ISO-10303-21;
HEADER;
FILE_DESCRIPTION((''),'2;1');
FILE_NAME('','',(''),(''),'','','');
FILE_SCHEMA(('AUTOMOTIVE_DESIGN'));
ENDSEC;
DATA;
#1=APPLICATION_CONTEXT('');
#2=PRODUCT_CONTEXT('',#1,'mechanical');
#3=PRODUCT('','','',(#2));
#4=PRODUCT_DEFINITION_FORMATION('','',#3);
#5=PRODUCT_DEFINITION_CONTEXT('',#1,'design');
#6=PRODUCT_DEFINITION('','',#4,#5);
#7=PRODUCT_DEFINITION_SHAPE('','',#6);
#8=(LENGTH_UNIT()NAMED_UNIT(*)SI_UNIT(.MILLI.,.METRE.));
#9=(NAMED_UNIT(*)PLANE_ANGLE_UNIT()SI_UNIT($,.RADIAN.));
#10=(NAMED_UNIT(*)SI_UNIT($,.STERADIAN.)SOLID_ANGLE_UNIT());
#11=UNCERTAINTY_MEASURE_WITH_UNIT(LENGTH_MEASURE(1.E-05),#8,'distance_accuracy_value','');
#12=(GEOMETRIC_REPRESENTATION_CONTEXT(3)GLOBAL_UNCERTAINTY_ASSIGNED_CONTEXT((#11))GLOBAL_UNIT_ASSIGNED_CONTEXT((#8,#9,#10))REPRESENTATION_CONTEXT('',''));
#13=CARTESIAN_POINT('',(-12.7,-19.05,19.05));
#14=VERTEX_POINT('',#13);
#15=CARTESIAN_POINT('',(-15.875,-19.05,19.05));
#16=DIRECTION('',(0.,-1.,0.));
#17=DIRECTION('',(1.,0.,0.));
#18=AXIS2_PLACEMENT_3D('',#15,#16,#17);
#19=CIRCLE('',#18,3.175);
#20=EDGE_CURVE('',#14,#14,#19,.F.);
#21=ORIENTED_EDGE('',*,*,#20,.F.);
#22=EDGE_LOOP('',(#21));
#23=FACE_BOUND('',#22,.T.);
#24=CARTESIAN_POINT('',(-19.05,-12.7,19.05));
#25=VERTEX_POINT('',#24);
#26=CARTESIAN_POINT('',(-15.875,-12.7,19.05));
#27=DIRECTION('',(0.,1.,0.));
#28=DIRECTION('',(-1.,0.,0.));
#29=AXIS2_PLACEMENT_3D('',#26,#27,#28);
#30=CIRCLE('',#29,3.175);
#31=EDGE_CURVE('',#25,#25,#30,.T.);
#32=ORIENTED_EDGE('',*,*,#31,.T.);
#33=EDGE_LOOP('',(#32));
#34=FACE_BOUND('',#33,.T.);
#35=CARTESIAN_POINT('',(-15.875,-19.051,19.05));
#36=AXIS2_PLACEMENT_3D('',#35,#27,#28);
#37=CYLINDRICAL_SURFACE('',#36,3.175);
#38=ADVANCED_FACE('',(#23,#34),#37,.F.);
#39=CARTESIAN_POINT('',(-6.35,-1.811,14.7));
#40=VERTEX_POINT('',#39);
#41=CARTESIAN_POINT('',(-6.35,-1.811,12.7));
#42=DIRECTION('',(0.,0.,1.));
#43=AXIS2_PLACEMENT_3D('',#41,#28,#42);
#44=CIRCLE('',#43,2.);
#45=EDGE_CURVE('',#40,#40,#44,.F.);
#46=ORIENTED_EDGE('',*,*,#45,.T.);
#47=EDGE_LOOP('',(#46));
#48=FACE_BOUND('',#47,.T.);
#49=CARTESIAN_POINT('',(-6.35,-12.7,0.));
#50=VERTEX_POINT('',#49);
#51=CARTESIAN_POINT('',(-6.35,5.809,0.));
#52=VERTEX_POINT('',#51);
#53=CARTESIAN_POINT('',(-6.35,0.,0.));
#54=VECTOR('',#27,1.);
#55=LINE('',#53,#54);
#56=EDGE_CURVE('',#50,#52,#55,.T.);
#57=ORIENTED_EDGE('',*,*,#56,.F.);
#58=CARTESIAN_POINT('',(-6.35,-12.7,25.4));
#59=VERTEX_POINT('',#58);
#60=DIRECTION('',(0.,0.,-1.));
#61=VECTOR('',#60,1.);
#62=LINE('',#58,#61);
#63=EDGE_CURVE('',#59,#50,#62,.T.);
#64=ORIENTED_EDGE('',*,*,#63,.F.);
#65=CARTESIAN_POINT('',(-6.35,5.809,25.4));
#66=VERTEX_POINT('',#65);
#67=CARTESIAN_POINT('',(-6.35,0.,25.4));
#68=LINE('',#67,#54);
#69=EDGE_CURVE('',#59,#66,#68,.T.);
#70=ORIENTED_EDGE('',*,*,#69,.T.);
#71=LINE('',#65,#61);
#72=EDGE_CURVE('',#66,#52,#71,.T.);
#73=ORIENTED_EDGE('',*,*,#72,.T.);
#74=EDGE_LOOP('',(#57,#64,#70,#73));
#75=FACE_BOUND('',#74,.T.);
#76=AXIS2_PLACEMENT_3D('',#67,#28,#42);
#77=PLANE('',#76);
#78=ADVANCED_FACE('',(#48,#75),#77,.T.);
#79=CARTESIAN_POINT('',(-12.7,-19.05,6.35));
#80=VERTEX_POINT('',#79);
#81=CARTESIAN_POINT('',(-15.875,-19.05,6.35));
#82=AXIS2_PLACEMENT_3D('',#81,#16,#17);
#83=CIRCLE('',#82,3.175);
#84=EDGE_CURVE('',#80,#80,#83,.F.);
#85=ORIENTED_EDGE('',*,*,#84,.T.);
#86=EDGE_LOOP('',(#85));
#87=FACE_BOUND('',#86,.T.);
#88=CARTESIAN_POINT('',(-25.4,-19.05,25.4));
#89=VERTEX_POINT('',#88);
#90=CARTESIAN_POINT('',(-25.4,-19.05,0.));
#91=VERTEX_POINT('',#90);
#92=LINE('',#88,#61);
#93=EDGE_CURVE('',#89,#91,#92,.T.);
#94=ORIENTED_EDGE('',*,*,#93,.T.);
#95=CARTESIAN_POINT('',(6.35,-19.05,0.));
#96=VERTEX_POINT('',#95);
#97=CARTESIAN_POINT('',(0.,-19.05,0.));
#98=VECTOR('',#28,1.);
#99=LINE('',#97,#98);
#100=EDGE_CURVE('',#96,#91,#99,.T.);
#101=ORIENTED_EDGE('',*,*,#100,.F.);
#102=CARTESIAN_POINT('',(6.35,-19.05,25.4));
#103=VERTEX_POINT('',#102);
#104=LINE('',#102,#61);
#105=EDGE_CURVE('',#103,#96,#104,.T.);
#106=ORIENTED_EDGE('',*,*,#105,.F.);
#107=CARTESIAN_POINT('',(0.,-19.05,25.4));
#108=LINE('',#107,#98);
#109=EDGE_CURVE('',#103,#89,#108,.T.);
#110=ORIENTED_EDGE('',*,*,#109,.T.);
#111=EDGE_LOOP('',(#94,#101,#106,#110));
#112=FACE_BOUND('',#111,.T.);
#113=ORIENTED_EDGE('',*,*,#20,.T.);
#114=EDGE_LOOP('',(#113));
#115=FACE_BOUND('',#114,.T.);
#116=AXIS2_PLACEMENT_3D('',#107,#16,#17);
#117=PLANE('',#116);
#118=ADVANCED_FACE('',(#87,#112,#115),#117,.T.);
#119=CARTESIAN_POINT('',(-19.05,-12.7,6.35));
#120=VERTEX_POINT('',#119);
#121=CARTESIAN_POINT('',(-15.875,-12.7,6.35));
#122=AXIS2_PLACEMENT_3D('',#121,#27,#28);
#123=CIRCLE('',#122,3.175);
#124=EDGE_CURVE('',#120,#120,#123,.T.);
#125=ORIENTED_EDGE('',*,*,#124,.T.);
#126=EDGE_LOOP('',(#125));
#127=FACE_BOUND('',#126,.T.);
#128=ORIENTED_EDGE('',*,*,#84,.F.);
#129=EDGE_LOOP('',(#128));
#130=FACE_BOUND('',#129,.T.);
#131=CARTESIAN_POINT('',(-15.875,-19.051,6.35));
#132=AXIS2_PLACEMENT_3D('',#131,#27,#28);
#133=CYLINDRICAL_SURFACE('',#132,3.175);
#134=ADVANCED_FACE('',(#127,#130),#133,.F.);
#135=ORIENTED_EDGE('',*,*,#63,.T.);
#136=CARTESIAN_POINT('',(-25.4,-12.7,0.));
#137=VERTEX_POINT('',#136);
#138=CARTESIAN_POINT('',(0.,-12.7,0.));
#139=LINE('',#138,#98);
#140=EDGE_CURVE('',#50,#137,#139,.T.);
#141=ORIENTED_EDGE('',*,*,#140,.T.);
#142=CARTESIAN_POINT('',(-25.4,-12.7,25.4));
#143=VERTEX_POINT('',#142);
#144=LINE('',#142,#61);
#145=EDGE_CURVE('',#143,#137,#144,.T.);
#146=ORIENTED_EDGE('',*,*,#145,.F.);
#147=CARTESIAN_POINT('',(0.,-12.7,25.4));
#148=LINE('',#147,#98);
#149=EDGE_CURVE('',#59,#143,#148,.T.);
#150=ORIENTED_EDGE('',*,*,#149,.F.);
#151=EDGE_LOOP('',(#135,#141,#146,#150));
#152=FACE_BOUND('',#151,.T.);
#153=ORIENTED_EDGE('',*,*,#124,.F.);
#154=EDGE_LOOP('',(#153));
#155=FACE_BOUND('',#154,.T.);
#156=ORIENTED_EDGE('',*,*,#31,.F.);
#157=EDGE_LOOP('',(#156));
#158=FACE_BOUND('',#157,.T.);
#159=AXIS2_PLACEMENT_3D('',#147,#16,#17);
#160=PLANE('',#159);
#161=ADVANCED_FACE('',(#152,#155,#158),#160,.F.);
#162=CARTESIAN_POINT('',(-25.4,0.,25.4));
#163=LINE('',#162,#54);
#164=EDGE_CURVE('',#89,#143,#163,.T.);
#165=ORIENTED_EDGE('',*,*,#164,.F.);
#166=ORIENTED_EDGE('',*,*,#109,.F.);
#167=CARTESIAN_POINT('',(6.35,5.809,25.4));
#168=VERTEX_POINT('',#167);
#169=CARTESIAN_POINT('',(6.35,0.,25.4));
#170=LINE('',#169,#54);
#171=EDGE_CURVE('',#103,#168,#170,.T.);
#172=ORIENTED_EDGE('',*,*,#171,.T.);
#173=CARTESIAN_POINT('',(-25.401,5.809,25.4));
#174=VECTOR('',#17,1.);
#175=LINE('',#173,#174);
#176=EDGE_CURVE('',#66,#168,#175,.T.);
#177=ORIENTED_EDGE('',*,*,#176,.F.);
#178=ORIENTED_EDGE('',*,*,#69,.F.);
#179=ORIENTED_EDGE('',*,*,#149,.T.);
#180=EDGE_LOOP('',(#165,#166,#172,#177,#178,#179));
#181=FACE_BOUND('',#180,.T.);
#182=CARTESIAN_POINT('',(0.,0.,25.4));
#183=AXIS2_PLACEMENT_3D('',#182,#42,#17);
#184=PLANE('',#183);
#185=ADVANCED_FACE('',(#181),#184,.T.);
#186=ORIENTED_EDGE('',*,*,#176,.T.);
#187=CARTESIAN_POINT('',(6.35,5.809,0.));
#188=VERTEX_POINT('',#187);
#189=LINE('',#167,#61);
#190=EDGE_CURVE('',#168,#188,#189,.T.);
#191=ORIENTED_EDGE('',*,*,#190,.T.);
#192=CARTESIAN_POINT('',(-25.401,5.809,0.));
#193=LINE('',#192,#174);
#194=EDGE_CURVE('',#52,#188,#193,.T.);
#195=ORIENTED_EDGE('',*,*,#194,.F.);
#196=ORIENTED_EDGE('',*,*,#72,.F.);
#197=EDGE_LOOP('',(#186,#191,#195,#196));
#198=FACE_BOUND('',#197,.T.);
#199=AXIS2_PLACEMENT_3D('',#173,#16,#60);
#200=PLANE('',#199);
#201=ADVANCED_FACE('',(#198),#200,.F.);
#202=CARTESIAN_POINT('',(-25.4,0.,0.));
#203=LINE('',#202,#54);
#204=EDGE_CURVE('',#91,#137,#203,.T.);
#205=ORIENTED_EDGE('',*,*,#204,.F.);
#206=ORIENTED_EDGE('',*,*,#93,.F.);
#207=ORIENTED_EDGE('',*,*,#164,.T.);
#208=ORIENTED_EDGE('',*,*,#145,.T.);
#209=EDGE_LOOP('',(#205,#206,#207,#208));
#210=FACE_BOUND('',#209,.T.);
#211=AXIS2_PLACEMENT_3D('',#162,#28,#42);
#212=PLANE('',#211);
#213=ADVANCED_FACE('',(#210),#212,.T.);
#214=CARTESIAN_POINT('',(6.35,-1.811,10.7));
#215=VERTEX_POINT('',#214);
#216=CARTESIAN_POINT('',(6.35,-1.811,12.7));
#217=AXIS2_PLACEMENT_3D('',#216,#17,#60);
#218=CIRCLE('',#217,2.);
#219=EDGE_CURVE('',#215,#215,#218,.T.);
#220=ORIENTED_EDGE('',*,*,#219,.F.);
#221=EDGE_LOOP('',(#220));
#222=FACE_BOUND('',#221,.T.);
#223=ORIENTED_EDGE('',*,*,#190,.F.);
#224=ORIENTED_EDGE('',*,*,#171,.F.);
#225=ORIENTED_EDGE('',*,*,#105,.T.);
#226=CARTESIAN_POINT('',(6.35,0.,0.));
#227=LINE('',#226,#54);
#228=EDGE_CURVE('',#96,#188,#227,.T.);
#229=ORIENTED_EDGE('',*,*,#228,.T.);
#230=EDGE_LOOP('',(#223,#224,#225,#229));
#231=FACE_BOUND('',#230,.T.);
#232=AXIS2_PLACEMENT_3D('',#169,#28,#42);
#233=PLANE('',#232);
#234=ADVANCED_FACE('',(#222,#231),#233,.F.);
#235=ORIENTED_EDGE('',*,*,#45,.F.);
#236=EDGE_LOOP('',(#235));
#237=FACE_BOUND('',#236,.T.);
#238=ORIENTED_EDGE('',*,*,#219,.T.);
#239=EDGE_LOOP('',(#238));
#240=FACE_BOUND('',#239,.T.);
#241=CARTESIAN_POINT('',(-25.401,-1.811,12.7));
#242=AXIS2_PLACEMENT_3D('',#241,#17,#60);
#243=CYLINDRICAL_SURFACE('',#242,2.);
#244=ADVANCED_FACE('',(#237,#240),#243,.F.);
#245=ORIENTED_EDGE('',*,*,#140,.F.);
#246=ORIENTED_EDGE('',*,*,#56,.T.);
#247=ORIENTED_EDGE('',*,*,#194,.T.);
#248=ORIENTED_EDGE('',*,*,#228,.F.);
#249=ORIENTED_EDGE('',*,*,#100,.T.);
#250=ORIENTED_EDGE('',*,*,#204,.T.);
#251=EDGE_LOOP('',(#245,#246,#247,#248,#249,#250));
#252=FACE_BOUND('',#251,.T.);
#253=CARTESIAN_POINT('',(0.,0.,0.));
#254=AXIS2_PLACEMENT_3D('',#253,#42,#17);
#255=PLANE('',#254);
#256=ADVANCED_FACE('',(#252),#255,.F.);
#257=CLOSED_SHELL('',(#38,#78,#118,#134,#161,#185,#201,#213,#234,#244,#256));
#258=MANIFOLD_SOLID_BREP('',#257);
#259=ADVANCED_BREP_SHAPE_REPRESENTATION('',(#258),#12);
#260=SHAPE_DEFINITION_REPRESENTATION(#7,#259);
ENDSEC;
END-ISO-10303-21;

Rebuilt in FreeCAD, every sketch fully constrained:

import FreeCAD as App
import Part
import Sketcher
from FreeCAD import Vector
Q = App.Units.Quantity


def add_polygon(sketch, points):
    """Adds a closed chain of lines whose ends are joined by coincident constraints."""
    first, n = sketch.GeometryCount, len(points)
    for a, b in zip(points, points[1:] + points[:1]):
        sketch.addGeometry(Part.LineSegment(App.Vector(*a, 0), App.Vector(*b, 0)), False)
    for i in range(n):
        sketch.addConstraint(Sketcher.Constraint("Coincident", first + i, 2, first + (i + 1) % n, 1))

doc = App.newDocument("Part")
body = doc.addObject("PartDesign::Body", "Body")

# Sketch on XY plane
sketch1 = body.newObject("Sketcher::SketchObject", "Sketch")
sketch1.AttachmentSupport = (doc.getObject("XY_Plane"), [""])
sketch1.MapMode = "FlatFace"
add_polygon(sketch1, [(-25, -13), (-25, -19), (6, -19), (6, 19), (-6, 19), (-6, -13)])  # lines 0-5
sketch1.addConstraint(Sketcher.Constraint("Vertical", 0))
sketch1.addConstraint(Sketcher.Constraint("Horizontal", 1))
sketch1.addConstraint(Sketcher.Constraint("Vertical", 2))
sketch1.addConstraint(Sketcher.Constraint("Horizontal", 3))
sketch1.addConstraint(Sketcher.Constraint("Vertical", 4))
sketch1.addConstraint(Sketcher.Constraint("Horizontal", 5))
sketch1.addConstraint(Sketcher.Constraint("Symmetric", 1, 2, 3, 2, -1, 1))
sketch1.addConstraint(Sketcher.Constraint("Equal", 1, 4))
sketch1.addConstraint(Sketcher.Constraint("DistanceX", 3, 2, 3, 1, Q("0.5 in")))
sketch1.addConstraint(Sketcher.Constraint("DistanceY", 2, 1, 2, 2, Q("1.5 in")))
sketch1.addConstraint(Sketcher.Constraint("DistanceX", 0, 2, -1, 1, Q("1 in")))
pad1 = body.newObject("PartDesign::Pad", "Pad")
pad1.Profile = sketch1
pad1.Length = Q("1 in")

# Sketch on XZ plane
sketch2 = body.newObject("Sketcher::SketchObject", "Sketch001")
sketch2.AttachmentSupport = (doc.getObject("XZ_Plane"), [""])
sketch2.MapMode = "FlatFace"
sketch2.AttachmentOffset = App.Placement(Vector(0, 0, 0.5 * 25.4), App.Rotation())
sketch2.addGeometry(Part.Circle(Vector(-15.9, 6.3, 0), Vector(0, 0, 1), 3.2), False)
sketch2.addConstraint(Sketcher.Constraint("Diameter", 0, Q("0.25 in")))
sketch2.addConstraint(Sketcher.Constraint("DistanceY", -1, 1, 0, 3, Q("0.25 in")))
sketch2.addConstraint(Sketcher.Constraint("DistanceX", 0, 3, -1, 1, Q("0.625 in")))
pocket1 = body.newObject("PartDesign::Pocket", "Pocket")
pocket1.Profile = sketch2
pocket1.Type = "UpToFirst"
pocket1.Reversed = True

# Sketch on XZ plane
sketch3 = body.newObject("Sketcher::SketchObject", "Sketch002")
sketch3.AttachmentSupport = (doc.getObject("XZ_Plane"), [""])
sketch3.MapMode = "FlatFace"
sketch3.AttachmentOffset = App.Placement(Vector(0, 0, 0.5 * 25.4), App.Rotation())
sketch3.addGeometry(Part.Circle(Vector(-15.9, 19.1, 0), Vector(0, 0, 1), 3.2), False)
sketch3.addConstraint(Sketcher.Constraint("Diameter", 0, Q("0.25 in")))
sketch3.addConstraint(Sketcher.Constraint("DistanceY", -1, 1, 0, 3, Q("0.75 in")))
sketch3.addConstraint(Sketcher.Constraint("DistanceX", 0, 3, -1, 1, Q("0.625 in")))
pocket2 = body.newObject("PartDesign::Pocket", "Pocket001")
pocket2.Profile = sketch3
pocket2.Type = "UpToFirst"
pocket2.Reversed = True

# Sketch on YZ plane
sketch4 = body.newObject("Sketcher::SketchObject", "Sketch003")
sketch4.AttachmentSupport = (doc.getObject("YZ_Plane"), [""])
sketch4.MapMode = "FlatFace"
sketch4.AttachmentOffset = App.Placement(Vector(0, 0, 0.25 * 25.4), App.Rotation())
sketch4.addGeometry(Part.Circle(Vector(-1.8, 12.7, 0), Vector(0, 0, 1), 2), False)
sketch4.addConstraint(Sketcher.Constraint("DistanceY", -1, 1, 0, 3, Q("0.5 in")))
sketch4.addConstraint(Sketcher.Constraint("Diameter", 0, 4.0))
sketch4.addConstraint(Sketcher.Constraint("DistanceX", 0, 3, -1, 1, 1.811))
pocket3 = body.newObject("PartDesign::Pocket", "Pocket002")
pocket3.Profile = sketch4
pocket3.Type = "UpToFirst"

# Sketch on YZ plane
sketch5 = body.newObject("Sketcher::SketchObject", "Sketch004")
sketch5.AttachmentSupport = (doc.getObject("YZ_Plane"), [""])
sketch5.MapMode = "FlatFace"
sketch5.AttachmentOffset = App.Placement(Vector(0, 0, 0.25 * 25.4), App.Rotation())
add_polygon(sketch5, [(19, 25), (6, 25), (6, 0), (19, 0)])  # lines 0-3
sketch5.addConstraint(Sketcher.Constraint("Horizontal", 0))
sketch5.addConstraint(Sketcher.Constraint("Vertical", 1))
sketch5.addConstraint(Sketcher.Constraint("Horizontal", 2))
sketch5.addConstraint(Sketcher.Constraint("Vertical", 3))
sketch5.addConstraint(Sketcher.Constraint("PointOnObject", 1, 2, -1))
sketch5.addConstraint(Sketcher.Constraint("DistanceY", 1, 2, 1, 1, Q("1 in")))
sketch5.addConstraint(Sketcher.Constraint("DistanceX", -1, 1, 2, 2, Q("0.75 in")))
sketch5.addConstraint(Sketcher.Constraint("DistanceX", 0, 2, 0, 1, 13.241))
pocket4 = body.newObject("PartDesign::Pocket", "Pocket003")
pocket4.Profile = sketch5
pocket4.Type = "UpToFirst"

doc.recompute()
